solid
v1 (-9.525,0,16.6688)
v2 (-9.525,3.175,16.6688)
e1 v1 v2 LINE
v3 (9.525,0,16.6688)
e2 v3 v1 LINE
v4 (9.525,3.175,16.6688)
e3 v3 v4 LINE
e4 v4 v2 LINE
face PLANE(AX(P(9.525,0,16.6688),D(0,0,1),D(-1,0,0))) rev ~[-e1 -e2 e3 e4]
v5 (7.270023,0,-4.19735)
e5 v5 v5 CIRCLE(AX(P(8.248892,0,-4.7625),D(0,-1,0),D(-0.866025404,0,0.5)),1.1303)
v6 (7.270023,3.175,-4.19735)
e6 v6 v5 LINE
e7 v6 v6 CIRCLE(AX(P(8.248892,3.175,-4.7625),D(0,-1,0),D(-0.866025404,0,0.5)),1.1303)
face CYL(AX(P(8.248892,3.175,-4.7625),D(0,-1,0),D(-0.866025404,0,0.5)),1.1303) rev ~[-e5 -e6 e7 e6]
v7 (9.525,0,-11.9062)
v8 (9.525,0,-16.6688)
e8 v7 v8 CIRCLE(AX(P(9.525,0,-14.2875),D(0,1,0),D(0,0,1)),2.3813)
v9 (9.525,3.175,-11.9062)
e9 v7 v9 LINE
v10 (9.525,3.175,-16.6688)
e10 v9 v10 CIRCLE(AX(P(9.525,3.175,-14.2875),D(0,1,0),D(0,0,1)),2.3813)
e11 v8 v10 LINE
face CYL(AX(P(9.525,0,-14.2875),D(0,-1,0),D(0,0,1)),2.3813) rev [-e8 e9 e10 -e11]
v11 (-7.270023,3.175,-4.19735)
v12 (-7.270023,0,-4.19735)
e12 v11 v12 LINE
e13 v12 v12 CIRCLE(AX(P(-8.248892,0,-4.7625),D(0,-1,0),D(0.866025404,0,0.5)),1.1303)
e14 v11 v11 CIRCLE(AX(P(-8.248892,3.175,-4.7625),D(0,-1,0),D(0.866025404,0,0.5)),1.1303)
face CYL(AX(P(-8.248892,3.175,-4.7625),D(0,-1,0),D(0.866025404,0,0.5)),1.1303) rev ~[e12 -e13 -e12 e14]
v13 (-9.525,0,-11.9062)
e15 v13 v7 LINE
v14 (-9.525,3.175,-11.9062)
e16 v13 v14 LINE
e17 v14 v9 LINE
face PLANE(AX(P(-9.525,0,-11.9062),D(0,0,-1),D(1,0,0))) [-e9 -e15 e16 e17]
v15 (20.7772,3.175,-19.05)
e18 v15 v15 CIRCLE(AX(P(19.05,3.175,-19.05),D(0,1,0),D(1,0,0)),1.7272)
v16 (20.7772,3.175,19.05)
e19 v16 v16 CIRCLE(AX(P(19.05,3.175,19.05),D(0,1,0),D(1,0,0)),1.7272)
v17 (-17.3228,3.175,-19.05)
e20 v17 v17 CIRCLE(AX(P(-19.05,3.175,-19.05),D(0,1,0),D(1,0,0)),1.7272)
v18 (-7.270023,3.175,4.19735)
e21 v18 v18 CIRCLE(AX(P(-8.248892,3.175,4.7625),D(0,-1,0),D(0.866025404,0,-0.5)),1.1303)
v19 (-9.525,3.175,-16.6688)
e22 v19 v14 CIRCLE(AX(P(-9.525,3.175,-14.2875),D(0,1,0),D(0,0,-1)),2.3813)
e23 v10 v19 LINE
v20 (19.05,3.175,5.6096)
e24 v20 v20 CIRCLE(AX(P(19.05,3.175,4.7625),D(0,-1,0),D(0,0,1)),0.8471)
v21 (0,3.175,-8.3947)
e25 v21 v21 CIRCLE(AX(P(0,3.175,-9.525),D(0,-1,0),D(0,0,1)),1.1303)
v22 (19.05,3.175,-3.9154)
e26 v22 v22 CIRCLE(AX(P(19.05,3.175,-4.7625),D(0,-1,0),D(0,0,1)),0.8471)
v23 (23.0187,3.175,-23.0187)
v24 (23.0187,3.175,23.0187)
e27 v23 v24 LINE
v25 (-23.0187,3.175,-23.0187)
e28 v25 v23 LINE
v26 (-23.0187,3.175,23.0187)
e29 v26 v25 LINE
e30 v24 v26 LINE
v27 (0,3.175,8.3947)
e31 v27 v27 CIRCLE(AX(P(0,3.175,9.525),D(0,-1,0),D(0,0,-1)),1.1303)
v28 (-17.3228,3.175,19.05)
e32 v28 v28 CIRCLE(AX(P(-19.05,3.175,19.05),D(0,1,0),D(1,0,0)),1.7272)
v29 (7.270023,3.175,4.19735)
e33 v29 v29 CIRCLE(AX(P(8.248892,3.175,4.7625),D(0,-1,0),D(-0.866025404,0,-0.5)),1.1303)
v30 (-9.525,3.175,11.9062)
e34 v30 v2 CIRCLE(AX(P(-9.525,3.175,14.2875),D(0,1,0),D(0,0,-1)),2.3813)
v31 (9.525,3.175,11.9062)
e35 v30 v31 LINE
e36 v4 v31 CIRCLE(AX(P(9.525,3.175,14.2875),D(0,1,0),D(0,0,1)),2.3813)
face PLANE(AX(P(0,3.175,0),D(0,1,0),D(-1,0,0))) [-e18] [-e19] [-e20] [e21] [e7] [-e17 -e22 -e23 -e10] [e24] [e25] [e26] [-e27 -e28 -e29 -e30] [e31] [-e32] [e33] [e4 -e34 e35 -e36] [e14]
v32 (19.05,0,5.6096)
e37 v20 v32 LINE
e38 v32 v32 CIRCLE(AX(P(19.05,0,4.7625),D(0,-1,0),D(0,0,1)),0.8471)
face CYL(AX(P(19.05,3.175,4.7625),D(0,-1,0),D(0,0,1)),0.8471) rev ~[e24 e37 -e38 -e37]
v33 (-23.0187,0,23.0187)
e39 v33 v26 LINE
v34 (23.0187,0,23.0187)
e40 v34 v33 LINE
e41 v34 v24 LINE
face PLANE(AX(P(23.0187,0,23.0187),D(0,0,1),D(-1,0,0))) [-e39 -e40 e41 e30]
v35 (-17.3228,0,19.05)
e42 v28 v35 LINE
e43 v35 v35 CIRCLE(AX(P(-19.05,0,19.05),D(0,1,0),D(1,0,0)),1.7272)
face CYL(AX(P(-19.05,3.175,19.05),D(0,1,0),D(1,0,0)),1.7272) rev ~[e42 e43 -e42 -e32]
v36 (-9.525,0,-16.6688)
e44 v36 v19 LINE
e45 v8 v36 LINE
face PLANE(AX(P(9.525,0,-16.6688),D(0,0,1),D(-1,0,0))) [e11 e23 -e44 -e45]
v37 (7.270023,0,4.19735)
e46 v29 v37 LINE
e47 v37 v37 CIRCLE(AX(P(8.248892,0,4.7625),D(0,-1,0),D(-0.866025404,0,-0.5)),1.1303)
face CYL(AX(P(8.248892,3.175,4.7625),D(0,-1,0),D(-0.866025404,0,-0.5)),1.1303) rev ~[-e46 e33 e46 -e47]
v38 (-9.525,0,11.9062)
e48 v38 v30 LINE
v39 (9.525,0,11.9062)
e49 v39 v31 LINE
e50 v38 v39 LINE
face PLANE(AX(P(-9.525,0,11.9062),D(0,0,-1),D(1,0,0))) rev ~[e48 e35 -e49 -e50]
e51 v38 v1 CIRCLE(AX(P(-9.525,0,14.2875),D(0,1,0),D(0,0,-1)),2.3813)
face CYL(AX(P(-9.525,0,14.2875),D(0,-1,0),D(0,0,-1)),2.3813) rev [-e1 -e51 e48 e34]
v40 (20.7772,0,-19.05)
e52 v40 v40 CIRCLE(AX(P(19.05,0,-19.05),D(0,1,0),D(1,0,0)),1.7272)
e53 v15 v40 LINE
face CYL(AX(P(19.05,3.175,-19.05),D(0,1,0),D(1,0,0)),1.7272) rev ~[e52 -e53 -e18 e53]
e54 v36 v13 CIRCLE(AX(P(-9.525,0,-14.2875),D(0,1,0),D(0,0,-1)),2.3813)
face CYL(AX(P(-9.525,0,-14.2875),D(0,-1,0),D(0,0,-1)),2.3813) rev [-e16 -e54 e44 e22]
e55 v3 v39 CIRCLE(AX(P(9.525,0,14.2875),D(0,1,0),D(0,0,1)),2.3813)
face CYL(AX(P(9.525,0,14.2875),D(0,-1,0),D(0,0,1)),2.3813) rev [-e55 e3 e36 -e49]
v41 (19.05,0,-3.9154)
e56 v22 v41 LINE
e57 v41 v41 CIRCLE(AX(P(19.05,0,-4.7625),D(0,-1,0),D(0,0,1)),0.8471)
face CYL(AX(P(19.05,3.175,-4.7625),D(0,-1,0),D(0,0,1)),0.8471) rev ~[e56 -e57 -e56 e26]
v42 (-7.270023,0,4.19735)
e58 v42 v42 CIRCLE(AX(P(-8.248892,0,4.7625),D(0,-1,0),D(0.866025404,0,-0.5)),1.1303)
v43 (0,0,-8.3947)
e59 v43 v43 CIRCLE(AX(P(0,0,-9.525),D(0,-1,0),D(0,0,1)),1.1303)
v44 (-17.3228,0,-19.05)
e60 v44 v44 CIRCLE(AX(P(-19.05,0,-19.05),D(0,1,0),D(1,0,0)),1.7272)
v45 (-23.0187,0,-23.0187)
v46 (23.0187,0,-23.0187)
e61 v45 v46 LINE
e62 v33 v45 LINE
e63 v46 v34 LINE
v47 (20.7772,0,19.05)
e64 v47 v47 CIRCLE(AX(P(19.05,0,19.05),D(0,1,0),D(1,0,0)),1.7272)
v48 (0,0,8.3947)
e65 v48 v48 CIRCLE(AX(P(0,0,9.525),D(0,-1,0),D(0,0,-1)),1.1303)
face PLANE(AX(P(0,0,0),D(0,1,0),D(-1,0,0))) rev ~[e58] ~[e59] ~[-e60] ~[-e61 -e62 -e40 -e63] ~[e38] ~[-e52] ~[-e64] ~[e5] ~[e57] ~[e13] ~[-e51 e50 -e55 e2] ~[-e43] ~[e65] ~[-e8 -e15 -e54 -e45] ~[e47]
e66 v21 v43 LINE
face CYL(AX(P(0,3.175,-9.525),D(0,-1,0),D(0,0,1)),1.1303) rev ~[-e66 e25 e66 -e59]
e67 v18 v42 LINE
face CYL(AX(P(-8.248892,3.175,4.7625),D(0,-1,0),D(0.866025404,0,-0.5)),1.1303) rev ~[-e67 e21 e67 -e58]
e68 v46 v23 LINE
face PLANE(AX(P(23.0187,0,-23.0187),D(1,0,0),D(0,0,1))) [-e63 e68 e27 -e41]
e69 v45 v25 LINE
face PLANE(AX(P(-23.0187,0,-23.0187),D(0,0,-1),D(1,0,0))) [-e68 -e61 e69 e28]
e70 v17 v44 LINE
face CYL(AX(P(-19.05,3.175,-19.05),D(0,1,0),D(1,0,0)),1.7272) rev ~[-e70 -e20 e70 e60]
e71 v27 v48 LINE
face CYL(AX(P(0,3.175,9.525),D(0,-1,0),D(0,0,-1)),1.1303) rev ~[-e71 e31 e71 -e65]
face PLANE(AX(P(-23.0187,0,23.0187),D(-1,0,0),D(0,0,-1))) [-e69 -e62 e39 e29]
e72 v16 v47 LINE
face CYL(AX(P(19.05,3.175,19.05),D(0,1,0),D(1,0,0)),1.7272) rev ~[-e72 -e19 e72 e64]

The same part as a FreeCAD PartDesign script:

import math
import FreeCAD as App
import Part
import Sketcher

V = App.Vector
Q = App.Units.Quantity


def add_polygon(sketch, points):
    """Adds a closed chain of lines whose ends are joined by coincident constraints."""
    first, n = sketch.GeometryCount, len(points)
    for a, b in zip(points, points[1:] + points[:1]):
        sketch.addGeometry(Part.LineSegment(App.Vector(*a, 0), App.Vector(*b, 0)), False)
    for i in range(n):
        sketch.addConstraint(Sketcher.Constraint("Coincident", first + i, 2, first + (i + 1) % n, 1))

doc = App.newDocument("Part")
body = doc.addObject("PartDesign::Body", "Body")

sketch1 = doc.addObject("Sketcher::SketchObject", "Sketch")
body.addObject(sketch1)
sketch1.AttachmentSupport = (doc.XZ_Plane, [""])
sketch1.MapMode = "FlatFace"
add_polygon(sketch1, [(23, -23), (-23, -23), (-23, 23), (23, 23)])
sketch1.addGeometry(Part.LineSegment(V(9.5, -11.9, 0), V(-9.5, -11.9, 0)), False)
sketch1.addGeometry(Part.ArcOfCircle(Part.Circle(V(-9.5, -14.3, 0), V(0, 0, 1), 2.4), math.radians(90), math.radians(270)), False)
sketch1.addGeometry(Part.LineSegment(V(-9.5, -16.7, 0), V(9.5, -16.7, 0)), False)
sketch1.addGeometry(Part.ArcOfCircle(Part.Circle(V(9.5, -14.3, 0), V(0, 0, 1), 2.4), math.radians(-90), math.radians(90)), False)
sketch1.addGeometry(Part.ArcOfCircle(Part.Circle(V(-9.5, 14.3, 0), V(0, 0, 1), 2.4), math.radians(90), math.radians(270)), False)
sketch1.addGeometry(Part.LineSegment(V(-9.5, 11.9, 0), V(9.5, 11.9, 0)), False)
sketch1.addGeometry(Part.ArcOfCircle(Part.Circle(V(9.5, 14.3, 0), V(0, 0, 1), 2.4), math.radians(-90), math.radians(90)), False)
sketch1.addGeometry(Part.LineSegment(V(9.5, 16.7, 0), V(-9.5, 16.7, 0)), False)
sketch1.addConstraint(Sketcher.Constraint("Tangent", 4, 2, 5, 1))
sketch1.addConstraint(Sketcher.Constraint("Tangent", 5, 2, 6, 1))
sketch1.addConstraint(Sketcher.Constraint("Tangent", 6, 2, 7, 1))
sketch1.addConstraint(Sketcher.Constraint("Tangent", 7, 2, 4, 1))
sketch1.addConstraint(Sketcher.Constraint("Tangent", 8, 2, 9, 1))
sketch1.addConstraint(Sketcher.Constraint("Tangent", 9, 2, 10, 1))
sketch1.addConstraint(Sketcher.Constraint("Tangent", 10, 2, 11, 1))
sketch1.addConstraint(Sketcher.Constraint("Tangent", 11, 2, 8, 1))
sketch1.addConstraint(Sketcher.Constraint("Horizontal", 0))
sketch1.addConstraint(Sketcher.Constraint("Vertical", 1))
sketch1.addConstraint(Sketcher.Constraint("Horizontal", 2))
sketch1.addConstraint(Sketcher.Constraint("Vertical", 3))
sketch1.addConstraint(Sketcher.Constraint("Horizontal", 4))
sketch1.addConstraint(Sketcher.Constraint("Horizontal", 6))
sketch1.addConstraint(Sketcher.Constraint("Horizontal", 9))
sketch1.addConstraint(Sketcher.Constraint("Horizontal", 11))
sketch1.addConstraint(Sketcher.Constraint("Equal", 7, 8))
sketch1.addConstraint(Sketcher.Constraint("Symmetric", 7, 3, 8, 3, -1, 1))
sketch1.addConstraint(Sketcher.Constraint("Symmetric", 0, 2, 2, 2, -1, 1))
sketch1.addConstraint(Sketcher.Constraint("Vertical", 5, 3, 8, 3))
sketch1.addConstraint(Sketcher.Constraint("Vertical", 7, 3, 10, 3))
sketch1.addConstraint(Sketcher.Constraint("Equal", 2, 1))
sketch1.addConstraint(Sketcher.Constraint("Radius", 5, Q("0.093752 in")))
sketch1.addConstraint(Sketcher.Constraint("DistanceX", 4, 2, 4, 1, Q("0.75 in")))
sketch1.addConstraint(Sketcher.Constraint("DistanceX", 0, 2, 0, 1, Q("1.8125 in")))
sketch1.addConstraint(Sketcher.Constraint("DistanceY", 4, 2, -1, 1, Q("0.468748 in")))
pad1 = doc.addObject("PartDesign::Pad", "Pad")
body.addObject(pad1)
pad1.Profile = sketch1
pad1.Length = Q("0.125 in")
pad1.Reversed = True

sketch2 = doc.addObject("Sketcher::SketchObject", "Sketch001")
body.addObject(sketch2)
sketch2.AttachmentSupport = (doc.XZ_Plane, [""])
sketch2.MapMode = "FlatFace"
sketch2.AttachmentOffset = App.Placement(V(0, 0, -0.125 * 25.4), App.Rotation())
sketch2.addGeometry(Part.Circle(V(0, -9.5, 0), V(0, 0, 1), 1.1), False)
sketch2.addConstraint(Sketcher.Constraint("PointOnObject", 0, 3, -2))
sketch2.addConstraint(Sketcher.Constraint("Diameter", 0, Q("0.089 in")))
sketch2.addConstraint(Sketcher.Constraint("DistanceY", 0, 3, -1, 1, Q("0.375 in")))
doc.recompute()
hole = doc.addObject("PartDesign::Hole", "Hole")
body.addObject(hole)
hole.Profile = sketch2
hole.ThreadType = "None"
hole.Diameter = Q("0.089 in")
hole.DepthType = "ThroughAll"
hole.Reversed = True
doc.recompute()

polarpattern = doc.addObject("PartDesign::PolarPattern", "PolarPattern")
body.addObject(polarpattern)
polarpattern.Originals = [hole]
polarpattern.Axis = (doc.Y_Axis, [""])
polarpattern.Angle = 360
polarpattern.Occurrences = 6
body.Tip = polarpattern

sketch3 = doc.addObject("Sketcher::SketchObject", "Sketch002")
body.addObject(sketch3)
sketch3.AttachmentSupport = (doc.XZ_Plane, [""])
sketch3.MapMode = "FlatFace"
sketch3.AttachmentOffset = App.Placement(V(0, 0, -0.125 * 25.4), App.Rotation())
sketch3.addGeometry(Part.Circle(V(-19.1, -19.1, 0), V(0, 0, 1), 1.7), False)
sketch3.addGeometry(Part.Circle(V(19.1, -19.1, 0), V(0, 0, 1), 1.7), False)
sketch3.addGeometry(Part.Circle(V(-19.1, 19.1, 0), V(0, 0, 1), 1.7), False)
sketch3.addGeometry(Part.Circle(V(19.1, 19.1, 0), V(0, 0, 1), 1.7), False)
sketch3.addConstraint(Sketcher.Constraint("Equal", 0, 1))
sketch3.addConstraint(Sketcher.Constraint("Equal", 1, 2))
sketch3.addConstraint(Sketcher.Constraint("Equal", 2, 3))
sketch3.addConstraint(Sketcher.Constraint("Symmetric", 1, 3, 2, 3, -1, 1))
sketch3.addConstraint(Sketcher.Constraint("Symmetric", 0, 3, 3, 3, -1, 1))
sketch3.addConstraint(Sketcher.Constraint("Symmetric", 0, 3, 1, 3, -2))
sketch3.addConstraint(Sketcher.Constraint("Diameter", 0, Q("0.136 in")))
sketch3.addConstraint(Sketcher.Constraint("DistanceX", 0, 3, 1, 3, Q("1.5 in")))
sketch3.addConstraint(Sketcher.Constraint("DistanceY", 0, 3, 2, 3, Q("1.5 in")))
pocket1 = doc.addObject("PartDesign::Pocket", "Pocket")
body.addObject(pocket1)
pocket1.Profile = sketch3
pocket1.Length = Q("0.125 in")
pocket1.Reversed = True

sketch4 = doc.addObject("Sketcher::SketchObject", "Sketch003")
body.addObject(sketch4)
sketch4.AttachmentSupport = (doc.XZ_Plane, [""])
sketch4.MapMode = "FlatFace"
sketch4.AttachmentOffset = App.Placement(V(0, 0, -0.125 * 25.4), App.Rotation())
sketch4.addGeometry(Part.Circle(V(19.1, -4.8, 0), V(0, 0, 1), 0.8), False)
sketch4.addGeometry(Part.Circle(V(19.1, 4.8, 0), V(0, 0, 1), 0.8), False)
sketch4.addConstraint(Sketcher.Constraint("Equal", 0, 1))
sketch4.addConstraint(Sketcher.Constraint("Symmetric", 0, 3, 1, 3, -1))
sketch4.addConstraint(Sketcher.Constraint("Diameter", 0, Q("0.0667 in")))
sketch4.addConstraint(Sketcher.Constraint("DistanceX", -1, 1, 0, 3, Q("0.75 in")))
sketch4.addConstraint(Sketcher.Constraint("DistanceY", 0, 3, -1, 1, Q("0.1875 in")))
doc.recompute()
hole2 = doc.addObject("PartDesign::Hole", "Hole001")
body.addObject(hole2)
hole2.Profile = sketch4
hole2.ThreadType = "None"
hole2.Diameter = Q("0.0667008 in")
hole2.DepthType = "ThroughAll"
hole2.Reversed = True

doc.recompute()
